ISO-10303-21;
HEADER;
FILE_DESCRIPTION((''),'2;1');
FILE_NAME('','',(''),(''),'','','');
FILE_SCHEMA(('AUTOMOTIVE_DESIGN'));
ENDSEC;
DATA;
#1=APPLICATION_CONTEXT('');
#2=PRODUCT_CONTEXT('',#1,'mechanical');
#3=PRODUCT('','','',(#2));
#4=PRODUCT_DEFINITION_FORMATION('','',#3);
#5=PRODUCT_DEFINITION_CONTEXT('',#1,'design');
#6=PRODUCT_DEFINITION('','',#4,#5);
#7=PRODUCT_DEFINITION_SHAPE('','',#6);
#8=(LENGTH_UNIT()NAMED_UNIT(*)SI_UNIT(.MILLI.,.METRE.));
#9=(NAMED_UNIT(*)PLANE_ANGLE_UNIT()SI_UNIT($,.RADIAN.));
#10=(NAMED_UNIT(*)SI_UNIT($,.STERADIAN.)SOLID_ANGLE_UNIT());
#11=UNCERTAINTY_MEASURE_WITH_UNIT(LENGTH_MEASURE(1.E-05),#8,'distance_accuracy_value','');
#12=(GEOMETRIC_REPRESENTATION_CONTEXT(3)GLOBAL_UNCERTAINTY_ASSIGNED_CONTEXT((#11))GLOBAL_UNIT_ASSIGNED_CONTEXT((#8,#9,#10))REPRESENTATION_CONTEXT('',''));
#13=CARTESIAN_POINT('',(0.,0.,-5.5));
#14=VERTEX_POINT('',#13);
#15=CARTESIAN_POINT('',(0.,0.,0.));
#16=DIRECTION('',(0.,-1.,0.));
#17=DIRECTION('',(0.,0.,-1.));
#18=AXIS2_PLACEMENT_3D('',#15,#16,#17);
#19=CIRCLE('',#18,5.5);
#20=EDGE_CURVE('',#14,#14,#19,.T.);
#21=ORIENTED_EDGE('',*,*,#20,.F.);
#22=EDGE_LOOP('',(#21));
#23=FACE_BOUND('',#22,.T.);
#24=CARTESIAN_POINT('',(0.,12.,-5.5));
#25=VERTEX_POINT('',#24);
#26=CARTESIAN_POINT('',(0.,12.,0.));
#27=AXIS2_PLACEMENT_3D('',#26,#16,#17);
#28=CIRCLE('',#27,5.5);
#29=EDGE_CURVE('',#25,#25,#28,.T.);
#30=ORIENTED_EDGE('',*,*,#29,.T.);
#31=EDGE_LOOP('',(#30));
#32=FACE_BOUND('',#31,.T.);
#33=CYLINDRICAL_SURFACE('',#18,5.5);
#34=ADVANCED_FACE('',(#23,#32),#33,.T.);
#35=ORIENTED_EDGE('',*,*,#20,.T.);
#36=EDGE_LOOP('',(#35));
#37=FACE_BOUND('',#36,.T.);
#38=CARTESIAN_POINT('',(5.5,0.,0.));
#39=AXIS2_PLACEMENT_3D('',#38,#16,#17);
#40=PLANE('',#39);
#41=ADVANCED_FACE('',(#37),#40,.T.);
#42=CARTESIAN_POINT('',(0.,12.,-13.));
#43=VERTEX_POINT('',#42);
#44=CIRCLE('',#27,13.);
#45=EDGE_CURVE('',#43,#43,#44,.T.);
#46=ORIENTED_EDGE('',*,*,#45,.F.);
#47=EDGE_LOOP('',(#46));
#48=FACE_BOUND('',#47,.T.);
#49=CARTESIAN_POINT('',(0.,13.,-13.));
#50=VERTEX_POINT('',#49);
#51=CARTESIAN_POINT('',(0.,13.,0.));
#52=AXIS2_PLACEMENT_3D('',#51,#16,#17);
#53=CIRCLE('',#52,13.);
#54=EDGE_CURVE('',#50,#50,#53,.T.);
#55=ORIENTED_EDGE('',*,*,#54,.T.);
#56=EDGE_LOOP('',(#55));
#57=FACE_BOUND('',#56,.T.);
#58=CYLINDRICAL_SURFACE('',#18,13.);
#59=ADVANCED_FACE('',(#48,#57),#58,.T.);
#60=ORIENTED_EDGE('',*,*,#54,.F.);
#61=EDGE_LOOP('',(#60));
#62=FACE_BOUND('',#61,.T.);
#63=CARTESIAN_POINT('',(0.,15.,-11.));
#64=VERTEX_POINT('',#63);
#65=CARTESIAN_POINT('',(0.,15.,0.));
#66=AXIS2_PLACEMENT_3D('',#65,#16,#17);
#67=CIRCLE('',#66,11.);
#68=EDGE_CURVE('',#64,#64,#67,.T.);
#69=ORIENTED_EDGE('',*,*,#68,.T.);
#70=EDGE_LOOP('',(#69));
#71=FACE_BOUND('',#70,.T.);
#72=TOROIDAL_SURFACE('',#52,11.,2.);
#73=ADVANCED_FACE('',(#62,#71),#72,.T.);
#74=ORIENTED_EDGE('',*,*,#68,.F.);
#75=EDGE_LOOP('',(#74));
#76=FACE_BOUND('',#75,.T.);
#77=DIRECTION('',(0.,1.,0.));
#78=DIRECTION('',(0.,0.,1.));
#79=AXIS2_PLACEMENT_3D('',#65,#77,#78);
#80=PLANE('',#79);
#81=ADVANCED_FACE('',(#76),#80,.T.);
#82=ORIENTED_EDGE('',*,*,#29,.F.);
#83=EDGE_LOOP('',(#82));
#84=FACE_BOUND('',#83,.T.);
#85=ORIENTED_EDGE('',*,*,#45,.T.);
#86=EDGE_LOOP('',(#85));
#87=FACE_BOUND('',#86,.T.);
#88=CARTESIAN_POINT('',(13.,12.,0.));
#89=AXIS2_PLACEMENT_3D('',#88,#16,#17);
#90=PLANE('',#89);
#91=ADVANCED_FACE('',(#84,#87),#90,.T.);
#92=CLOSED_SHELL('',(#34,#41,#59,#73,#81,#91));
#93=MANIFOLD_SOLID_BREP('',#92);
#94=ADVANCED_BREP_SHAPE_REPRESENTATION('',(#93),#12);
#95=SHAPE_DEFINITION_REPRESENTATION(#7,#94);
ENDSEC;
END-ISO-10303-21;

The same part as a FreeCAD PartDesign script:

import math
import FreeCAD as App
import Part
import Sketcher
from FreeCAD import Vector
Q = App.Units.Quantity

doc = App.newDocument("Part")
body = doc.addObject("PartDesign::Body", "Body")

# Sketch on XY plane
sketch1 = body.newObject("Sketcher::SketchObject", "Sketch")
sketch1.AttachmentSupport = (doc.getObject("XY_Plane"), [""])
sketch1.MapMode = "FlatFace"
sketch1.addGeometry([
    Part.LineSegment(Vector(11, 15, 0), Vector(0, 15, 0)),  # 0
    Part.LineSegment(Vector(0, 15, 0), Vector(0, 0, 0)),  # 1
    Part.LineSegment(Vector(0, 0, 0), Vector(5.5, 0, 0)),  # 2
    Part.LineSegment(Vector(5.5, 0, 0), Vector(5.5, 12, 0)),  # 3
    Part.LineSegment(Vector(5.5, 12, 0), Vector(13, 12, 0)),  # 4
    Part.LineSegment(Vector(13, 12, 0), Vector(13, 13, 0)),  # 5
    Part.ArcOfCircle(Part.Circle(Vector(11, 13, 0), Vector(0, 0, 1), 2), math.radians(0), math.radians(90)),  # 6
], False)
sketch1.addConstraint([
    Sketcher.Constraint("Coincident", 0, 2, 1, 1),
    Sketcher.Constraint("Coincident", 1, 2, 2, 1),
    Sketcher.Constraint("Coincident", 2, 2, 3, 1),
    Sketcher.Constraint("Coincident", 3, 2, 4, 1),
    Sketcher.Constraint("Coincident", 4, 2, 5, 1),
    Sketcher.Constraint("Tangent", 5, 2, 6, 1),
    Sketcher.Constraint("Tangent", 6, 2, 0, 1),
    Sketcher.Constraint("Horizontal", 0),
    Sketcher.Constraint("Vertical", 1),
    Sketcher.Constraint("Horizontal", 2),
    Sketcher.Constraint("Vertical", 3),
    Sketcher.Constraint("Horizontal", 4),
    Sketcher.Constraint("Vertical", 5),
    Sketcher.Constraint("Coincident", 1, 2, -1, 1),
    Sketcher.Constraint("Radius", 6, Q("2 mm")),
    Sketcher.Constraint("DistanceX", 0, 2, 0, 1, Q("11 mm")),
    Sketcher.Constraint("DistanceY", 1, 2, 1, 1, Q("15 mm")),
    Sketcher.Constraint("DistanceY", 3, 1, 3, 2, Q("12 mm")),
    Sketcher.Constraint("DistanceX", 2, 1, 2, 2, Q("5.5 mm")),
])
revolution = body.newObject("PartDesign::Revolution", "Revolution")
revolution.Profile = sketch1
revolution.ReferenceAxis = (sketch1, ["V_Axis"])
revolution.Angle = 360

doc.recompute()
